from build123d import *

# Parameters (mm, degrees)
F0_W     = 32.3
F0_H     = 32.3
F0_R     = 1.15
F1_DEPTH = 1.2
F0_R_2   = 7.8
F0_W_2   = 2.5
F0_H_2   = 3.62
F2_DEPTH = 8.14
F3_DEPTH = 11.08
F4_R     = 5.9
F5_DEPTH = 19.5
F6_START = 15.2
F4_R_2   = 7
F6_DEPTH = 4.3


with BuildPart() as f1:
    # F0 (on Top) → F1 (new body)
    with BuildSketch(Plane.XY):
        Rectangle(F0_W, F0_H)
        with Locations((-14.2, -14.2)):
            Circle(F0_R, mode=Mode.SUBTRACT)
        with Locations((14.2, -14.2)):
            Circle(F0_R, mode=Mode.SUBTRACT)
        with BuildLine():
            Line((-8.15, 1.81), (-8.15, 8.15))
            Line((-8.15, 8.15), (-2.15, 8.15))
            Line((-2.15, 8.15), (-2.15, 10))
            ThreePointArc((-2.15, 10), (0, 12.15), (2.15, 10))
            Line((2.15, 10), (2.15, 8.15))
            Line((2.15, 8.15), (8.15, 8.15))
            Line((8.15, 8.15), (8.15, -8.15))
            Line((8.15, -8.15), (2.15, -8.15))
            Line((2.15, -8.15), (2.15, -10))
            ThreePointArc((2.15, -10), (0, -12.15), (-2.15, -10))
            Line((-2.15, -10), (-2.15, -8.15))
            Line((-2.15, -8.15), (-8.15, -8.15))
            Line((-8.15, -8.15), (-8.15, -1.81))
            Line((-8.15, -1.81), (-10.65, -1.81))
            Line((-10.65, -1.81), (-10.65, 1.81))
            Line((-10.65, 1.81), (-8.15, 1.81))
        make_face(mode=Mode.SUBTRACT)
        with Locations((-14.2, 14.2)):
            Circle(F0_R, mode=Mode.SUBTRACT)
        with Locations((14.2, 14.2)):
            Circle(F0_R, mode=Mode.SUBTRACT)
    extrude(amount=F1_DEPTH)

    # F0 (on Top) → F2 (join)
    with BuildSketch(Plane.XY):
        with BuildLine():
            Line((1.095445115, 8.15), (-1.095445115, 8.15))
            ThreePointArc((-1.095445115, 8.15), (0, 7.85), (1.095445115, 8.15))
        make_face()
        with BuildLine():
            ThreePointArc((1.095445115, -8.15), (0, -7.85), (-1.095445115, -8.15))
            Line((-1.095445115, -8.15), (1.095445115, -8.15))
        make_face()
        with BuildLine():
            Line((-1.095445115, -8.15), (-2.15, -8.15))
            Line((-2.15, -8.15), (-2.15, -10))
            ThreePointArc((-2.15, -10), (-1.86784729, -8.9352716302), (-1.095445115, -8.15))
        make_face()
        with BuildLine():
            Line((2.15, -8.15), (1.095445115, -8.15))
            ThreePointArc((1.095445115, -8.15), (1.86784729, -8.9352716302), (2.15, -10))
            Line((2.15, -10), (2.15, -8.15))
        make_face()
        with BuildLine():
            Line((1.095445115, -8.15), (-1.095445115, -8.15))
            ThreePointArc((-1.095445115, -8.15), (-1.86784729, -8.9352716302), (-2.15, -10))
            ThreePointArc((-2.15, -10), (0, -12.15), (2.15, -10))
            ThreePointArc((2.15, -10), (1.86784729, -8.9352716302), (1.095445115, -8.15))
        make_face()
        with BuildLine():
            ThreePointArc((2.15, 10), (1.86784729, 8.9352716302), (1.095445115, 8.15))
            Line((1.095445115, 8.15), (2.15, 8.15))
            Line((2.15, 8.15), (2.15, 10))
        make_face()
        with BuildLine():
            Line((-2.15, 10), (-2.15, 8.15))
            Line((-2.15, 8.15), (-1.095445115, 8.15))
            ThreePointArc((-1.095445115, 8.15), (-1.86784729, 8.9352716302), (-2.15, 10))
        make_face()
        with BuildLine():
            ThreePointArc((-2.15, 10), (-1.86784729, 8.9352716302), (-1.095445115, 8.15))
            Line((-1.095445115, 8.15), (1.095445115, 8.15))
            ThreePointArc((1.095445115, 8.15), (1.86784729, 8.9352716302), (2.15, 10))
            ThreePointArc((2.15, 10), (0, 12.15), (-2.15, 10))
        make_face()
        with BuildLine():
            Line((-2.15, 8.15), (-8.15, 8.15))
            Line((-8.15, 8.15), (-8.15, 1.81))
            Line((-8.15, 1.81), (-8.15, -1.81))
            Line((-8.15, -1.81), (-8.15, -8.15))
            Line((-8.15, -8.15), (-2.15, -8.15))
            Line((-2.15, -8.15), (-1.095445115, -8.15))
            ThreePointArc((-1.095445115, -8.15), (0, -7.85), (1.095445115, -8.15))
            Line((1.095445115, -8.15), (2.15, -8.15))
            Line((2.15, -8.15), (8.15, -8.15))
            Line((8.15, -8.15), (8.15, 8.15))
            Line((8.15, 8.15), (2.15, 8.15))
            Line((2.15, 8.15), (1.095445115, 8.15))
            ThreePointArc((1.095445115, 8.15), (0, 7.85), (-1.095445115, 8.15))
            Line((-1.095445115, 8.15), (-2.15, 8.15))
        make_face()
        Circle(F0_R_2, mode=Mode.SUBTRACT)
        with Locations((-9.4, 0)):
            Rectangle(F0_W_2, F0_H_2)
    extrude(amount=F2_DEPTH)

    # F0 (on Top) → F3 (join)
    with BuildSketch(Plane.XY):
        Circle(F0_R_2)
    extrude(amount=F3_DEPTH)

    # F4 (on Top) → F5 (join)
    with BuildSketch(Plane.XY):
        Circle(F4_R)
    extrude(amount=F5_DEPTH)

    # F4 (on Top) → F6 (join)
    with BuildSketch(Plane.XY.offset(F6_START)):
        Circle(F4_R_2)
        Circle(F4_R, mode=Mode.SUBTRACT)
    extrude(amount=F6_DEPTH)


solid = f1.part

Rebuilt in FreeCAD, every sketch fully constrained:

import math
import FreeCAD as App
import Part
import Sketcher
from FreeCAD import Vector
Q = App.Units.Quantity

doc = App.newDocument("Part")
params = doc.addObject("Spreadsheet::Sheet", "Params")
for row, (alias, value) in enumerate([
    ("sketch1_diameter", "2.3 mm"),
    ("sketch1_width", "6 mm"),
    ("sketch1_radius", "2.15 mm"),
    ("sketch1_width2", "32.3 mm"),
    ("sketch1_width3", "2.5 mm"),
    ("pad1_length", "1.2 mm"),
    ("sketch2_diameter", "15.6 mm"),
    ("sketch2_width", "6 mm"),
    ("sketch2_radius", "2.15 mm"),
    ("sketch2_width2", "2.5 mm"),
    ("sketch2_height", "16.3 mm"),
    ("pad2_length", "8.14 mm"),
    ("sketch3_diameter", "15.6 mm"),
    ("pad3_length", "11.08 mm"),
    ("sketch4_diameter", "11.8 mm"),
    ("pad4_length", "19.5 mm"),
    ("sketch5_diameter", "14 mm"),
    ("sketch5_diameter2", "11.8 mm"),
    ("pad5_length", "4.3 mm"),
], start=1):
    params.set(f"A{row}", alias)
    params.set(f"B{row}", "=" + value)
    params.setAlias(f"B{row}", alias)

body = doc.addObject("PartDesign::Body", "Body")

# Sketch on XY plane
sketch1 = body.newObject("Sketcher::SketchObject", "Sketch")
sketch1.AttachmentSupport = (doc.getObject("XY_Plane"), [""])
sketch1.MapMode = "FlatFace"
sketch1.addGeometry(Part.LineSegment(Vector(-16.15, 16.15, 0), Vector(-16.15, -16.15, 0)), False)
sketch1.addGeometry(Part.LineSegment(Vector(-16.15, -16.15, 0), Vector(16.15, -16.15, 0)), False)
sketch1.addGeometry(Part.LineSegment(Vector(16.15, -16.15, 0), Vector(16.15, 16.15, 0)), False)
sketch1.addGeometry(Part.LineSegment(Vector(16.15, 16.15, 0), Vector(-16.15, 16.15, 0)), False)
sketch1.addGeometry(Part.Circle(Vector(-14.2, -14.2, 0), Vector(0, 0, 1), 1.15), False)
sketch1.addGeometry(Part.Circle(Vector(14.2, -14.2, 0), Vector(0, 0, 1), 1.15), False)
sketch1.addGeometry(Part.LineSegment(Vector(-10.65, 1.81, 0), Vector(-8.15, 1.81, 0)), False)
sketch1.addGeometry(Part.LineSegment(Vector(-8.15, 1.81, 0), Vector(-8.15, 8.15, 0)), False)
sketch1.addGeometry(Part.LineSegment(Vector(-8.15, 8.15, 0), Vector(-2.15, 8.15, 0)), False)
sketch1.addGeometry(Part.LineSegment(Vector(-2.15, 8.15, 0), Vector(-2.15, 10, 0)), False)
sketch1.addGeometry(Part.ArcOfCircle(Part.Circle(Vector(0, 10, 0), Vector(0, 0, 1), 2.15), math.radians(0), math.radians(180)), False)
sketch1.addGeometry(Part.LineSegment(Vector(2.15, 10, 0), Vector(2.15, 8.15, 0)), False)
sketch1.addGeometry(Part.LineSegment(Vector(2.15, 8.15, 0), Vector(8.15, 8.15, 0)), False)
sketch1.addGeometry(Part.LineSegment(Vector(8.15, 8.15, 0), Vector(8.15, -8.15, 0)), False)
sketch1.addGeometry(Part.LineSegment(Vector(8.15, -8.15, 0), Vector(2.15, -8.15, 0)), False)
sketch1.addGeometry(Part.LineSegment(Vector(2.15, -8.15, 0), Vector(2.15, -10, 0)), False)
sketch1.addGeometry(Part.ArcOfCircle(Part.Circle(Vector(0, -10, 0), Vector(0, 0, 1), 2.15), math.radians(180), math.radians(360)), False)
sketch1.addGeometry(Part.LineSegment(Vector(-2.15, -10, 0), Vector(-2.15, -8.15, 0)), False)
sketch1.addGeometry(Part.LineSegment(Vector(-2.15, -8.15, 0), Vector(-8.15, -8.15, 0)), False)
sketch1.addGeometry(Part.LineSegment(Vector(-8.15, -8.15, 0), Vector(-8.15, -1.81, 0)), False)
sketch1.addGeometry(Part.LineSegment(Vector(-8.15, -1.81, 0), Vector(-10.65, -1.81, 0)), False)
sketch1.addGeometry(Part.LineSegment(Vector(-10.65, -1.81, 0), Vector(-10.65, 1.81, 0)), False)
sketch1.addGeometry(Part.Circle(Vector(-14.2, 14.2, 0), Vector(0, 0, 1), 1.15), False)
sketch1.addGeometry(Part.Circle(Vector(14.2, 14.2, 0), Vector(0, 0, 1), 1.15), False)
sketch1.addConstraint(Sketcher.Constraint("Coincident", 0, 2, 1, 1))
sketch1.addConstraint(Sketcher.Constraint("Coincident", 1, 2, 2, 1))
sketch1.addConstraint(Sketcher.Constraint("Coincident", 2, 2, 3, 1))
sketch1.addConstraint(Sketcher.Constraint("Coincident", 3, 2, 0, 1))
sketch1.addConstraint(Sketcher.Constraint("Coincident", 6, 2, 7, 1))
sketch1.addConstraint(Sketcher.Constraint("Coincident", 7, 2, 8, 1))
sketch1.addConstraint(Sketcher.Constraint("Coincident", 8, 2, 9, 1))
sketch1.addConstraint(Sketcher.Constraint("Tangent", 9, 2, 10, 2))
sketch1.addConstraint(Sketcher.Constraint("Tangent", 10, 1, 11, 1))
sketch1.addConstraint(Sketcher.Constraint("Coincident", 11, 2, 12, 1))
sketch1.addConstraint(Sketcher.Constraint("Coincident", 12, 2, 13, 1))
sketch1.addConstraint(Sketcher.Constraint("Coincident", 13, 2, 14, 1))
sketch1.addConstraint(Sketcher.Constraint("Coincident", 14, 2, 15, 1))
sketch1.addConstraint(Sketcher.Constraint("Tangent", 15, 2, 16, 2))
sketch1.addConstraint(Sketcher.Constraint("Tangent", 16, 1, 17, 1))
sketch1.addConstraint(Sketcher.Constraint("Coincident", 17, 2, 18, 1))
sketch1.addConstraint(Sketcher.Constraint("Coincident", 18, 2, 19, 1))
sketch1.addConstraint(Sketcher.Constraint("Coincident", 19, 2, 20, 1))
sketch1.addConstraint(Sketcher.Constraint("Coincident", 20, 2, 21, 1))
sketch1.addConstraint(Sketcher.Constraint("Coincident", 21, 2, 6, 1))
sketch1.addConstraint(Sketcher.Constraint("Vertical", 0))
sketch1.addConstraint(Sketcher.Constraint("Horizontal", 1))
sketch1.addConstraint(Sketcher.Constraint("Vertical", 2))
sketch1.addConstraint(Sketcher.Constraint("Horizontal", 3))
sketch1.addConstraint(Sketcher.Constraint("Horizontal", 6))
sketch1.addConstraint(Sketcher.Constraint("Vertical", 7))
sketch1.addConstraint(Sketcher.Constraint("Horizontal", 8))
sketch1.addConstraint(Sketcher.Constraint("Vertical", 9))
sketch1.addConstraint(Sketcher.Constraint("Vertical", 11))
sketch1.addConstraint(Sketcher.Constraint("Horizontal", 12))
sketch1.addConstraint(Sketcher.Constraint("Vertical", 13))
sketch1.addConstraint(Sketcher.Constraint("Horizontal", 14))
sketch1.addConstraint(Sketcher.Constraint("Vertical", 15))
sketch1.addConstraint(Sketcher.Constraint("Vertical", 17))
sketch1.addConstraint(Sketcher.Constraint("Horizontal", 18))
sketch1.addConstraint(Sketcher.Constraint("Vertical", 19))
sketch1.addConstraint(Sketcher.Constraint("Horizontal", 20))
sketch1.addConstraint(Sketcher.Constraint("Vertical", 21))
sketch1.addConstraint(Sketcher.Constraint("Equal", 4, 5))
sketch1.addConstraint(Sketcher.Constraint("Equal", 10, 16))
sketch1.addConstraint(Sketcher.Constraint("Equal", 5, 22))
sketch1.addConstraint(Sketcher.Constraint("Equal", 22, 23))
sketch1.addConstraint(Sketcher.Constraint("Symmetric", 10, 3, 16, 3, -1, 1))
sketch1.addConstraint(Sketcher.Constraint("Symmetric", 5, 3, 22, 3, -1, 1))
sketch1.addConstraint(Sketcher.Constraint("Symmetric", 4, 3, 23, 3, -1, 1))
sketch1.addConstraint(Sketcher.Constraint("Symmetric", 0, 2, 2, 2, -1, 1))
sketch1.addConstraint(Sketcher.Constraint("Symmetric", 7, 2, 13, 2, -1, 1))
sketch1.addConstraint(Sketcher.Constraint("Symmetric", 12, 2, 18, 2, -1, 1))
sketch1.addConstraint(Sketcher.Constraint("Symmetric", 4, 3, 5, 3, -2))
sketch1.addConstraint(Sketcher.Constraint("Symmetric", 8, 2, 11, 2, -2))
sketch1.addConstraint(Sketcher.Constraint("Equal", 3, 0))
sketch1.addConstraint(Sketcher.Constraint("Equal", 7, 19))
sketch1.addConstraint(Sketcher.Constraint("Diameter", 4, Q("2.3 mm")))
sketch1.addConstraint(Sketcher.Constraint("DistanceX", 8, 1, 8, 2, Q("6 mm")))
sketch1.addConstraint(Sketcher.Constraint("Radius", 10, Q("2.15 mm")))
sketch1.addConstraint(Sketcher.Constraint("DistanceX", 1, 1, 1, 2, Q("32.3 mm")))
sketch1.addConstraint(Sketcher.Constraint("DistanceX", 6, 1, 6, 2, Q("2.5 mm")))
sketch1.addConstraint(Sketcher.Constraint("DistanceY", 13, 2, 13, 1, Q("16.3 mm")))
sketch1.addConstraint(Sketcher.Constraint("DistanceY", -1, 1, 10, 3, Q("10 mm")))
sketch1.addConstraint(Sketcher.Constraint("DistanceY", 7, 1, 7, 2, Q("6.34 mm")))
sketch1.addConstraint(Sketcher.Constraint("DistanceX", 4, 3, -1, 1, Q("14.2 mm")))
sketch1.addConstraint(Sketcher.Constraint("DistanceY", 4, 3, -1, 1, Q("14.2 mm")))
sketch1.setExpression("Constraints[52]", "Params.sketch1_diameter")
sketch1.setExpression("Constraints[53]", "Params.sketch1_width")
sketch1.setExpression("Constraints[54]", "Params.sketch1_radius")
sketch1.setExpression("Constraints[55]", "Params.sketch1_width2")
sketch1.setExpression("Constraints[56]", "Params.sketch1_width3")
pad1 = body.newObject("PartDesign::Pad", "Pad")
pad1.Profile = sketch1
pad1.setExpression("Length", "Params.pad1_length")

# Sketch on XY plane
sketch2 = body.newObject("Sketcher::SketchObject", "Sketch001")
sketch2.AttachmentSupport = (doc.getObject("XY_Plane"), [""])
sketch2.MapMode = "FlatFace"
sketch2.addGeometry(Part.LineSegment(Vector(2.15, 8.15, 0), Vector(2.15, 10, 0)), False)
sketch2.addGeometry(Part.ArcOfCircle(Part.Circle(Vector(0, 10, 0), Vector(0, 0, 1), 2.15), math.radians(0), math.radians(180)), False)
sketch2.addGeometry(Part.LineSegment(Vector(-2.15, 10, 0), Vector(-2.15, 8.15, 0)), False)
sketch2.addGeometry(Part.LineSegment(Vector(-2.15, 8.15, 0), Vector(-8.15, 8.15, 0)), False)
sketch2.addGeometry(Part.LineSegment(Vector(-8.15, 8.15, 0), Vector(-8.15, 1.81, 0)), False)
sketch2.addGeometry(Part.LineSegment(Vector(-8.15, 1.81, 0), Vector(-10.65, 1.81, 0)), False)
sketch2.addGeometry(Part.LineSegment(Vector(-10.65, 1.81, 0), Vector(-10.65, -1.81, 0)), False)
sketch2.addGeometry(Part.LineSegment(Vector(-10.65, -1.81, 0), Vector(-8.15, -1.81, 0)), False)
sketch2.addGeometry(Part.LineSegment(Vector(-8.15, -1.81, 0), Vector(-8.15, -8.15, 0)), False)
sketch2.addGeometry(Part.LineSegment(Vector(-8.15, -8.15, 0), Vector(-2.15, -8.15, 0)), False)
sketch2.addGeometry(Part.LineSegment(Vector(-2.15, -8.15, 0), Vector(-2.15, -10, 0)), False)
sketch2.addGeometry(Part.ArcOfCircle(Part.Circle(Vector(0, -10, 0), Vector(0, 0, 1), 2.15), math.radians(180), math.radians(360)), False)
sketch2.addGeometry(Part.LineSegment(Vector(2.15, -10, 0), Vector(2.15, -8.15, 0)), False)
sketch2.addGeometry(Part.LineSegment(Vector(2.15, -8.15, 0), Vector(8.15, -8.15, 0)), False)
sketch2.addGeometry(Part.LineSegment(Vector(8.15, -8.15, 0), Vector(8.15, 8.15, 0)), False)
sketch2.addGeometry(Part.LineSegment(Vector(8.15, 8.15, 0), Vector(2.15, 8.15, 0)), False)
sketch2.addGeometry(Part.Circle(Vector(0, 0, 0), Vector(0, 0, 1), 7.8), False)
sketch2.addConstraint(Sketcher.Constraint("Tangent", 0, 2, 1, 1))
sketch2.addConstraint(Sketcher.Constraint("Tangent", 1, 2, 2, 1))
sketch2.addConstraint(Sketcher.Constraint("Coincident", 2, 2, 3, 1))
sketch2.addConstraint(Sketcher.Constraint("Coincident", 3, 2, 4, 1))
sketch2.addConstraint(Sketcher.Constraint("Coincident", 4, 2, 5, 1))
sketch2.addConstraint(Sketcher.Constraint("Coincident", 5, 2, 6, 1))
sketch2.addConstraint(Sketcher.Constraint("Coincident", 6, 2, 7, 1))
sketch2.addConstraint(Sketcher.Constraint("Coincident", 7, 2, 8, 1))
sketch2.addConstraint(Sketcher.Constraint("Coincident", 8, 2, 9, 1))
sketch2.addConstraint(Sketcher.Constraint("Coincident", 9, 2, 10, 1))
sketch2.addConstraint(Sketcher.Constraint("Tangent", 10, 2, 11, 1))
sketch2.addConstraint(Sketcher.Constraint("Tangent", 11, 2, 12, 1))
sketch2.addConstraint(Sketcher.Constraint("Coincident", 12, 2, 13, 1))
sketch2.addConstraint(Sketcher.Constraint("Coincident", 13, 2, 14, 1))
sketch2.addConstraint(Sketcher.Constraint("Coincident", 14, 2, 15, 1))
sketch2.addConstraint(Sketcher.Constraint("Coincident", 15, 2, 0, 1))
sketch2.addConstraint(Sketcher.Constraint("Vertical", 0))
sketch2.addConstraint(Sketcher.Constraint("Vertical", 2))
sketch2.addConstraint(Sketcher.Constraint("Horizontal", 3))
sketch2.addConstraint(Sketcher.Constraint("Vertical", 4))
sketch2.addConstraint(Sketcher.Constraint("Horizontal", 5))
sketch2.addConstraint(Sketcher.Constraint("Vertical", 6))
sketch2.addConstraint(Sketcher.Constraint("Horizontal", 7))
sketch2.addConstraint(Sketcher.Constraint("Vertical", 8))
sketch2.addConstraint(Sketcher.Constraint("Horizontal", 9))
sketch2.addConstraint(Sketcher.Constraint("Vertical", 10))
sketch2.addConstraint(Sketcher.Constraint("Vertical", 12))
sketch2.addConstraint(Sketcher.Constraint("Horizontal", 13))
sketch2.addConstraint(Sketcher.Constraint("Vertical", 14))
sketch2.addConstraint(Sketcher.Constraint("Horizontal", 15))
sketch2.addConstraint(Sketcher.Constraint("Coincident", 16, 3, -1, 1))
sketch2.addConstraint(Sketcher.Constraint("Equal", 1, 11))
sketch2.addConstraint(Sketcher.Constraint("Symmetric", 1, 3, 11, 3, -1, 1))
sketch2.addConstraint(Sketcher.Constraint("Symmetric", 3, 2, 13, 2, -1, 1))
sketch2.addConstraint(Sketcher.Constraint("Symmetric", 8, 2, 14, 2, -1, 1))
sketch2.addConstraint(Sketcher.Constraint("Symmetric", 9, 2, 12, 2, -2))
sketch2.addConstraint(Sketcher.Constraint("Equal", 4, 8))
sketch2.addConstraint(Sketcher.Constraint("Diameter", 16, Q("15.6 mm")))
sketch2.addConstraint(Sketcher.Constraint("DistanceX", 3, 2, 3, 1, Q("6 mm")))
sketch2.addConstraint(Sketcher.Constraint("Radius", 1, Q("2.15 mm")))
sketch2.addConstraint(Sketcher.Constraint("DistanceX", 5, 2, 5, 1, Q("2.5 mm")))
sketch2.addConstraint(Sketcher.Constraint("DistanceY", 14, 1, 14, 2, Q("16.3 mm")))
sketch2.addConstraint(Sketcher.Constraint("DistanceY", -1, 1, 1, 3, Q("10 mm")))
sketch2.addConstraint(Sketcher.Constraint("DistanceY", 4, 2, 4, 1, Q("6.34 mm")))
sketch2.setExpression("Constraints[37]", "Params.sketch2_diameter")
sketch2.setExpression("Constraints[38]", "Params.sketch2_width")
sketch2.setExpression("Constraints[39]", "Params.sketch2_radius")
sketch2.setExpression("Constraints[40]", "Params.sketch2_width2")
sketch2.setExpression("Constraints[41]", "Params.sketch2_height")
pad2 = body.newObject("PartDesign::Pad", "Pad001")
pad2.Profile = sketch2
pad2.setExpression("Length", "Params.pad2_length")

# Sketch on XY plane
sketch3 = body.newObject("Sketcher::SketchObject", "Sketch002")
sketch3.AttachmentSupport = (doc.getObject("XY_Plane"), [""])
sketch3.MapMode = "FlatFace"
sketch3.addGeometry(Part.Circle(Vector(0, 0, 0), Vector(0, 0, 1), 7.8), False)
sketch3.addConstraint(Sketcher.Constraint("Coincident", 0, 3, -1, 1))
sketch3.addConstraint(Sketcher.Constraint("Diameter", 0, Q("15.6 mm")))
sketch3.setExpression("Constraints[1]", "Params.sketch3_diameter")
pad3 = body.newObject("PartDesign::Pad", "Pad002")
pad3.Profile = sketch3
pad3.setExpression("Length", "Params.pad3_length")

# Sketch on XY plane
sketch4 = body.newObject("Sketcher::SketchObject", "Sketch003")
sketch4.AttachmentSupport = (doc.getObject("XY_Plane"), [""])
sketch4.MapMode = "FlatFace"
sketch4.addGeometry(Part.Circle(Vector(0, 0, 0), Vector(0, 0, 1), 5.9), False)
sketch4.addConstraint(Sketcher.Constraint("Coincident", 0, 3, -1, 1))
sketch4.addConstraint(Sketcher.Constraint("Diameter", 0, Q("11.8 mm")))
sketch4.setExpression("Constraints[1]", "Params.sketch4_diameter")
pad4 = body.newObject("PartDesign::Pad", "Pad003")
pad4.Profile = sketch4
pad4.setExpression("Length", "Params.pad4_length")

# Sketch on XY plane
sketch5 = body.newObject("Sketcher::SketchObject", "Sketch004")
sketch5.AttachmentSupport = (doc.getObject("XY_Plane"), [""])
sketch5.MapMode = "FlatFace"
sketch5.AttachmentOffset = App.Placement(Vector(0, 0, 15.2), App.Rotation())
sketch5.addGeometry(Part.Circle(Vector(0, 0, 0), Vector(0, 0, 1), 7), False)
sketch5.addGeometry(Part.Circle(Vector(0, 0, 0), Vector(0, 0, 1), 5.9), False)
sketch5.addConstraint(Sketcher.Constraint("Coincident", 0, 3, -1, 1))
sketch5.addConstraint(Sketcher.Constraint("Coincident", 1, 3, -1, 1))
sketch5.addConstraint(Sketcher.Constraint("Diameter", 0, Q("14 mm")))
sketch5.addConstraint(Sketcher.Constraint("Diameter", 1, Q("11.8 mm")))
sketch5.setExpression("Constraints[2]", "Params.sketch5_diameter")
sketch5.setExpression("Constraints[3]", "Params.sketch5_diameter2")
pad5 = body.newObject("PartDesign::Pad", "Pad004")
pad5.Profile = sketch5
pad5.setExpression("Length", "Params.pad5_length")

doc.recompute()
